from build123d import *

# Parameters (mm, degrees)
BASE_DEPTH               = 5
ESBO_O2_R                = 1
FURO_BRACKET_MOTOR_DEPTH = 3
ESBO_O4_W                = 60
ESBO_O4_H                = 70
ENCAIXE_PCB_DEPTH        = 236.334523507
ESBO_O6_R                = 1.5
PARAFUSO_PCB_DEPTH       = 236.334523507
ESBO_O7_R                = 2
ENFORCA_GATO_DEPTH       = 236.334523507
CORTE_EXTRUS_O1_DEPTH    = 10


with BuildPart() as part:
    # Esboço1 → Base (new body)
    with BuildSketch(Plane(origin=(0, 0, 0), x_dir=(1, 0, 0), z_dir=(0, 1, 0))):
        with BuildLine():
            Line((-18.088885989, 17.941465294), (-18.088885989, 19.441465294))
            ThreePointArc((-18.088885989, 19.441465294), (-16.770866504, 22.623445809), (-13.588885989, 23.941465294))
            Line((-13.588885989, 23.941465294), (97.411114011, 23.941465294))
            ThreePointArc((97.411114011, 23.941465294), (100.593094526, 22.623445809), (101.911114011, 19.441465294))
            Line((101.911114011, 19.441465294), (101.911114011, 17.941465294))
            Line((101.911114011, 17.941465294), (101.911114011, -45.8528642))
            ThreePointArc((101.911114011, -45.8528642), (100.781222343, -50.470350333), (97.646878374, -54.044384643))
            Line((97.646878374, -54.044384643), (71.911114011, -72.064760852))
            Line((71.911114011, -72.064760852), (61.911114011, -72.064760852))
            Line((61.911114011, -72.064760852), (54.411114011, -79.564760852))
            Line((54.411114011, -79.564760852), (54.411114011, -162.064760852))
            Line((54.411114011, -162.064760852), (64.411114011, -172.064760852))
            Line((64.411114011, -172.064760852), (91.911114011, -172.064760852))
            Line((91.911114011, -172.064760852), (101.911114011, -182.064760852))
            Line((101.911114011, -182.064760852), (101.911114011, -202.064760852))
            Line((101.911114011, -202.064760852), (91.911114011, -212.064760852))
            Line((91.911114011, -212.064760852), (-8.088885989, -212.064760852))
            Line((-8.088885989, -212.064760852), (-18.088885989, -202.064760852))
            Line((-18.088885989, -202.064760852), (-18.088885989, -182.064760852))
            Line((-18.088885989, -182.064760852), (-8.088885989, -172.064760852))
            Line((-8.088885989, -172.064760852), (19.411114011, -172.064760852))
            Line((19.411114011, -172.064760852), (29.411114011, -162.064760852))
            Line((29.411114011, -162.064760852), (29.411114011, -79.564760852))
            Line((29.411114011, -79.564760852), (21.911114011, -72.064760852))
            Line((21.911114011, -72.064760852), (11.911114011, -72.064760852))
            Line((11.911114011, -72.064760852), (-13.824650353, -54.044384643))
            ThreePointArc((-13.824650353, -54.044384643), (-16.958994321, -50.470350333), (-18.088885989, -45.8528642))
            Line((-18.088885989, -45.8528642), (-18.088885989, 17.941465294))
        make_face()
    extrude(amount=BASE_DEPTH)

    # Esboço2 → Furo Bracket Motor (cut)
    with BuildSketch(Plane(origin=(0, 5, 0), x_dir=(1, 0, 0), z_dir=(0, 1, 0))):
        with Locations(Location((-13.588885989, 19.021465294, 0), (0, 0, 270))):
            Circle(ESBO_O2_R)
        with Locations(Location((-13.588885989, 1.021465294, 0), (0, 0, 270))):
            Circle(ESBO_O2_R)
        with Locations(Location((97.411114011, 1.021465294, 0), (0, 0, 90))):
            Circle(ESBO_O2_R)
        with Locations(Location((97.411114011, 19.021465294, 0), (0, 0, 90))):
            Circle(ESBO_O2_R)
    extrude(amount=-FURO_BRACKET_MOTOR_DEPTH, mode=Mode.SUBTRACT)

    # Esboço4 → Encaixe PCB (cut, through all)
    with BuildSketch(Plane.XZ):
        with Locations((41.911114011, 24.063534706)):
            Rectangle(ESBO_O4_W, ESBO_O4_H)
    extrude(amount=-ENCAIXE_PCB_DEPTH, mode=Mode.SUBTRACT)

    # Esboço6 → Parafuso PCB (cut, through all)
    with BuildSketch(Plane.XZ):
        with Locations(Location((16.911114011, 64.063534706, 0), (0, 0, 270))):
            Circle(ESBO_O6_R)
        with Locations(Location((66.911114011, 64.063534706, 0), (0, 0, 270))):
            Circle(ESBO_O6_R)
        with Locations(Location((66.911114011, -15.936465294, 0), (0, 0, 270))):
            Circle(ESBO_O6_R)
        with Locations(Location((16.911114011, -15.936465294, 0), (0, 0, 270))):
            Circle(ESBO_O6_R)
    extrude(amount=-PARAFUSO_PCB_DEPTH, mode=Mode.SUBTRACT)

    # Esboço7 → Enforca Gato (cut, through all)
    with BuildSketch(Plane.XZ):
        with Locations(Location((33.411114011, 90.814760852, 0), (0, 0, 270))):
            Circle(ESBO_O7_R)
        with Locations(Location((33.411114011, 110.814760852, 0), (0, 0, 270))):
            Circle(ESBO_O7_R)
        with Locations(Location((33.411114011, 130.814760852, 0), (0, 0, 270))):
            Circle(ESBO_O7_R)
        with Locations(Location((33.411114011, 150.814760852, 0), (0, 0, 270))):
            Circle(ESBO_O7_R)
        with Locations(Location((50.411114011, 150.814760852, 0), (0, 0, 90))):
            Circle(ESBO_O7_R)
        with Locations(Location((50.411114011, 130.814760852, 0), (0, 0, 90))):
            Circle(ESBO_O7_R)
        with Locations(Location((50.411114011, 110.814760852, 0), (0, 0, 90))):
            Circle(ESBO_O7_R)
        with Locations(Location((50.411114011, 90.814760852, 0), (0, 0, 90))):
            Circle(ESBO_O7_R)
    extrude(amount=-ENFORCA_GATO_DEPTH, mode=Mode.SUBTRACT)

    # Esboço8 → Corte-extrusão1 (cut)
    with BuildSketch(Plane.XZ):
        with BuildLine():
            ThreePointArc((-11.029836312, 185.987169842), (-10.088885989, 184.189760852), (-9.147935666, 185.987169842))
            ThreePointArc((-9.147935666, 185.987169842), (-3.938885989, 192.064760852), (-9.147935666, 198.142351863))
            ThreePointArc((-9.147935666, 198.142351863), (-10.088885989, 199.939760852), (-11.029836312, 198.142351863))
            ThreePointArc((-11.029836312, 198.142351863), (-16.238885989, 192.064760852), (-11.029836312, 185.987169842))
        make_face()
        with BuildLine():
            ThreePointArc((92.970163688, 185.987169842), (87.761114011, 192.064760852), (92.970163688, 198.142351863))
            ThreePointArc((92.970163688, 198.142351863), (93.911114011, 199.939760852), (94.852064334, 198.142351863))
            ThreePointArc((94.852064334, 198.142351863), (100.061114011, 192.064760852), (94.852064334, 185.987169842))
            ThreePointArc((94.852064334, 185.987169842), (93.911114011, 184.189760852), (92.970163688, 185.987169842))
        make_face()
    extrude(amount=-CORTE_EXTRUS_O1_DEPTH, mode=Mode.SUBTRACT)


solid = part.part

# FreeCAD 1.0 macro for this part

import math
import FreeCAD as App
import Part
import Sketcher
from FreeCAD import Vector
Q = App.Units.Quantity

doc = App.newDocument("Part")
params = doc.addObject("Spreadsheet::Sheet", "Params")
for row, (alias, value) in enumerate([
    ("sketch1_radius", "10 mm"),
    ("sketch1_radius2", "4.5 mm"),
    ("sketch1_width", "10 mm"),
    ("sketch1_width2", "100 mm"),
    ("sketch1_height", "20 mm"),
    ("pad1_length", "5 mm"),
    ("sketch2_diameter", "2 mm"),
    ("pocket1_length", "3 mm"),
    ("sketch3_width", "60 mm"),
    ("sketch3_height", "70 mm"),
    ("sketch4_diameter", "3 mm"),
    ("sketch5_diameter", "4 mm"),
    ("sketch6_radius", "6.15 mm"),
    ("pocket5_length", "10 mm"),
], start=1):
    params.set(f"A{row}", alias)
    params.set(f"B{row}", "=" + value)
    params.setAlias(f"B{row}", alias)

body = doc.addObject("PartDesign::Body", "Body")

sketch1 = body.newObject("Sketcher::SketchObject", "Sketch")
sketch1.AttachmentSupport = (doc.getObject("XZ_Plane"), [""])
sketch1.MapMode = "FlatFace"
sketch1.addGeometry([
    Part.ArcOfCircle(Part.Circle(Vector(-13.588886, -19.441465, 0), Vector(0, 0, 1), 4.5), math.radians(-180), math.radians(-90)),
    Part.LineSegment(Vector(-18.088886, -19.441465, 0), Vector(-18.088886, 45.852864, 0)),
    Part.ArcOfCircle(Part.Circle(Vector(-8.088886, 45.852864, 0), Vector(0, 0, 1), 10), math.radians(125), math.radians(180)),
    Part.LineSegment(Vector(-13.82465, 54.044385, 0), Vector(11.911114, 72.064761, 0)),
    Part.LineSegment(Vector(11.911114, 72.064761, 0), Vector(21.911114, 72.064761, 0)),
    Part.LineSegment(Vector(21.911114, 72.064761, 0), Vector(29.411114, 79.564761, 0)),
    Part.LineSegment(Vector(29.411114, 79.564761, 0), Vector(29.411114, 162.064761, 0)),
    Part.LineSegment(Vector(29.411114, 162.064761, 0), Vector(19.411114, 172.064761, 0)),
    Part.LineSegment(Vector(19.411114, 172.064761, 0), Vector(-8.088886, 172.064761, 0)),
    Part.LineSegment(Vector(-8.088886, 172.064761, 0), Vector(-18.088886, 182.064761, 0)),
    Part.LineSegment(Vector(-18.088886, 182.064761, 0), Vector(-18.088886, 202.064761, 0)),
    Part.LineSegment(Vector(-18.088886, 202.064761, 0), Vector(-8.088886, 212.064761, 0)),
    Part.LineSegment(Vector(-8.088886, 212.064761, 0), Vector(91.911114, 212.064761, 0)),
    Part.LineSegment(Vector(91.911114, 212.064761, 0), Vector(101.911114, 202.064761, 0)),
    Part.LineSegment(Vector(101.911114, 202.064761, 0), Vector(101.911114, 182.064761, 0)),
    Part.LineSegment(Vector(101.911114, 182.064761, 0), Vector(91.911114, 172.064761, 0)),
    Part.LineSegment(Vector(91.911114, 172.064761, 0), Vector(64.411114, 172.064761, 0)),
    Part.LineSegment(Vector(64.411114, 172.064761, 0), Vector(54.411114, 162.064761, 0)),
    Part.LineSegment(Vector(54.411114, 162.064761, 0), Vector(54.411114, 79.564761, 0)),
    Part.LineSegment(Vector(54.411114, 79.564761, 0), Vector(61.911114, 72.064761, 0)),
    Part.LineSegment(Vector(61.911114, 72.064761, 0), Vector(71.911114, 72.064761, 0)),
    Part.LineSegment(Vector(71.911114, 72.064761, 0), Vector(97.646878, 54.044385, 0)),
    Part.ArcOfCircle(Part.Circle(Vector(91.911114, 45.852864, 0), Vector(0, 0, 1), 10), math.radians(0), math.radians(55)),
    Part.LineSegment(Vector(101.911114, 45.852864, 0), Vector(101.911114, -19.441465, 0)),
    Part.ArcOfCircle(Part.Circle(Vector(97.411114, -19.441465, 0), Vector(0, 0, 1), 4.5), math.radians(-90), math.radians(0)),
    Part.LineSegment(Vector(97.411114, -23.941465, 0), Vector(-13.588886, -23.941465, 0)),
], False)
sketch1.addConstraint([
    Sketcher.Constraint("Tangent", 0, 1, 1, 1),
    Sketcher.Constraint("Tangent", 1, 2, 2, 2),
    Sketcher.Constraint("Tangent", 2, 1, 3, 1),
    Sketcher.Constraint("Coincident", 3, 2, 4, 1),
    Sketcher.Constraint("Coincident", 4, 2, 5, 1),
    Sketcher.Constraint("Coincident", 5, 2, 6, 1),
    Sketcher.Constraint("Coincident", 6, 2, 7, 1),
    Sketcher.Constraint("Coincident", 7, 2, 8, 1),
    Sketcher.Constraint("Coincident", 8, 2, 9, 1),
    Sketcher.Constraint("Coincident", 9, 2, 10, 1),
    Sketcher.Constraint("Coincident", 10, 2, 11, 1),
    Sketcher.Constraint("Coincident", 11, 2, 12, 1),
    Sketcher.Constraint("Coincident", 12, 2, 13, 1),
    Sketcher.Constraint("Coincident", 13, 2, 14, 1),
    Sketcher.Constraint("Coincident", 14, 2, 15, 1),
    Sketcher.Constraint("Coincident", 15, 2, 16, 1),
    Sketcher.Constraint("Coincident", 16, 2, 17, 1),
    Sketcher.Constraint("Coincident", 17, 2, 18, 1),
    Sketcher.Constraint("Coincident", 18, 2, 19, 1),
    Sketcher.Constraint("Coincident", 19, 2, 20, 1),
    Sketcher.Constraint("Coincident", 20, 2, 21, 1),
    Sketcher.Constraint("Tangent", 21, 2, 22, 2),
    Sketcher.Constraint("Tangent", 22, 1, 23, 1),
    Sketcher.Constraint("Tangent", 23, 2, 24, 2),
    Sketcher.Constraint("Tangent", 24, 1, 25, 1),
    Sketcher.Constraint("Tangent", 25, 2, 0, 2),
    Sketcher.Constraint("Vertical", 1),
    Sketcher.Constraint("Horizontal", 4),
    Sketcher.Constraint("Vertical", 6),
    Sketcher.Constraint("Horizontal", 8),
    Sketcher.Constraint("Vertical", 10),
    Sketcher.Constraint("Horizontal", 12),
    Sketcher.Constraint("Vertical", 14),
    Sketcher.Constraint("Horizontal", 16),
    Sketcher.Constraint("Vertical", 18),
    Sketcher.Constraint("Horizontal", 20),
    Sketcher.Constraint("Vertical", 23),
    Sketcher.Constraint("Horizontal", 25),
    Sketcher.Constraint("Equal", 2, 22),
    Sketcher.Constraint("Equal", 0, 24),
    Sketcher.Constraint("Perpendicular", 5, 7),
    Sketcher.Constraint("Parallel", 7, 9),
    Sketcher.Constraint("Perpendicular", 9, 11),
    Sketcher.Constraint("Perpendicular", 11, 13),
    Sketcher.Constraint("Perpendicular", 13, 15),
    Sketcher.Constraint("Parallel", 15, 17),
    Sketcher.Constraint("Perpendicular", 17, 19),
    Sketcher.Constraint("Horizontal", 2, 3, 22, 3),
    Sketcher.Constraint("Horizontal", 10, 2, 13, 2),
    Sketcher.Constraint("Horizontal", 9, 2, 14, 2),
    Sketcher.Constraint("Horizontal", 8, 2, 15, 2),
    Sketcher.Constraint("Horizontal", 6, 2, 17, 2),
    Sketcher.Constraint("Horizontal", 5, 2, 18, 2),
    Sketcher.Constraint("Horizontal", 4, 2, 19, 2),
    Sketcher.Constraint("Horizontal", 2, 1, 21, 2),
    Sketcher.Constraint("Vertical", 2, 3, 8, 2),
    Sketcher.Constraint("Vertical", 1, 2, 9, 2),
    Sketcher.Constraint("Vertical", 8, 2, 11, 2),
    Sketcher.Constraint("Vertical", 22, 3, 12, 2),
    Sketcher.Constraint("Vertical", 12, 2, 15, 2),
    Sketcher.Constraint("Equal", 8, 16),
    Sketcher.Constraint("Equal", 7, 9),
    Sketcher.Constraint("Radius", 2, Q("10 mm")),
    Sketcher.Constraint("Radius", 0, Q("4.5 mm")),
    Sketcher.Constraint("DistanceX", 4, 1, 4, 2, Q("10 mm")),
    Sketcher.Constraint("DistanceX", 12, 1, 12, 2, Q("100 mm")),
    Sketcher.Constraint("DistanceY", 10, 1, 10, 2, Q("20 mm")),
    Sketcher.Constraint("Angle", 3, Q("35 deg")),
    Sketcher.Constraint("DistanceX", 8, 2, 8, 1, Q("27.5 mm")),
    Sketcher.Constraint("DistanceY", 6, 1, 6, 2, Q("82.5 mm")),
    Sketcher.Constraint("DistanceX", 2, 3, 3, 2, Q("20 mm")),
    Sketcher.Constraint("DistanceY", 1, 1, 1, 2, Q("65.294329 mm")),
    Sketcher.Constraint("DistanceX", 2, 1, -1, 1, Q("13.82465 mm")),
    Sketcher.Constraint("DistanceY", -1, 1, 3, 2, Q("72.064761 mm")),
])
sketch1.setExpression("Constraints[62]", "Params.sketch1_radius")
sketch1.setExpression("Constraints[63]", "Params.sketch1_radius2")
sketch1.setExpression("Constraints[64]", "Params.sketch1_width")
sketch1.setExpression("Constraints[65]", "Params.sketch1_width2")
sketch1.setExpression("Constraints[66]", "Params.sketch1_height")
pad1 = body.newObject("PartDesign::Pad", "Pad")
pad1.Profile = sketch1
pad1.setExpression("Length", "Params.pad1_length")
pad1.Reversed = True

sketch2 = body.newObject("Sketcher::SketchObject", "Sketch001")
sketch2.AttachmentSupport = (doc.getObject("XZ_Plane"), [""])
sketch2.MapMode = "FlatFace"
sketch2.AttachmentOffset = App.Placement(Vector(0, 0, -5), App.Rotation())
sketch2.addGeometry([
    Part.Circle(Vector(-13.588886, -19.021465, 0), Vector(0, 0, 1), 1),
    Part.Circle(Vector(-13.588886, -1.021465, 0), Vector(0, 0, 1), 1),
    Part.Circle(Vector(97.411114, -1.021465, 0), Vector(0, 0, 1), 1),
    Part.Circle(Vector(97.411114, -19.021465, 0), Vector(0, 0, 1), 1),
], False)
sketch2.addConstraint([
    Sketcher.Constraint("Equal", 0, 1),
    Sketcher.Constraint("Equal", 1, 2),
    Sketcher.Constraint("Equal", 2, 3),
    Sketcher.Constraint("Horizontal", 1, 3, 2, 3),
    Sketcher.Constraint("Horizontal", 0, 3, 3, 3),
    Sketcher.Constraint("Vertical", 0, 3, 1, 3),
    Sketcher.Constraint("Vertical", 2, 3, 3, 3),
    Sketcher.Constraint("Diameter", 0, Q("2 mm")),
    Sketcher.Constraint("DistanceY", 0, 3, 1, 3, Q("18 mm")),
    Sketcher.Constraint("DistanceX", 1, 3, 2, 3, Q("111 mm")),
    Sketcher.Constraint("DistanceX", 0, 3, -1, 1, Q("13.588886 mm")),
    Sketcher.Constraint("DistanceY", 0, 3, -1, 1, Q("19.021465 mm")),
])
sketch2.setExpression("Constraints[7]", "Params.sketch2_diameter")
pocket1 = body.newObject("PartDesign::Pocket", "Pocket")
pocket1.Profile = sketch2
pocket1.setExpression("Length", "Params.pocket1_length")
pocket1.Reversed = True

sketch3 = body.newObject("Sketcher::SketchObject", "Sketch002")
sketch3.AttachmentSupport = (doc.getObject("XZ_Plane"), [""])
sketch3.MapMode = "FlatFace"
sketch3.addGeometry([
    Part.LineSegment(Vector(11.911114, 59.063535, 0), Vector(11.911114, -10.936465, 0)),
    Part.LineSegment(Vector(11.911114, -10.936465, 0), Vector(71.911114, -10.936465, 0)),
    Part.LineSegment(Vector(71.911114, -10.936465, 0), Vector(71.911114, 59.063535, 0)),
    Part.LineSegment(Vector(71.911114, 59.063535, 0), Vector(11.911114, 59.063535, 0)),
], False)
sketch3.addConstraint([
    Sketcher.Constraint("Coincident", 0, 2, 1, 1),
    Sketcher.Constraint("Coincident", 1, 2, 2, 1),
    Sketcher.Constraint("Coincident", 2, 2, 3, 1),
    Sketcher.Constraint("Coincident", 3, 2, 0, 1),
    Sketcher.Constraint("Vertical", 0),
    Sketcher.Constraint("Horizontal", 1),
    Sketcher.Constraint("Vertical", 2),
    Sketcher.Constraint("Horizontal", 3),
    Sketcher.Constraint("DistanceX", 1, 1, 1, 2, Q("60 mm")),
    Sketcher.Constraint("DistanceY", 0, 2, 0, 1, Q("70 mm")),
    Sketcher.Constraint("DistanceX", -1, 1, 0, 2, Q("11.911114 mm")),
    Sketcher.Constraint("DistanceY", 0, 2, -1, 1, Q("10.936465 mm")),
])
sketch3.setExpression("Constraints[8]", "Params.sketch3_width")
sketch3.setExpression("Constraints[9]", "Params.sketch3_height")
pocket2 = body.newObject("PartDesign::Pocket", "Pocket001")
pocket2.Profile = sketch3
pocket2.Type = "ThroughAll"

sketch4 = body.newObject("Sketcher::SketchObject", "Sketch003")
sketch4.AttachmentSupport = (doc.getObject("XZ_Plane"), [""])
sketch4.MapMode = "FlatFace"
sketch4.addGeometry([
    Part.Circle(Vector(16.911114, 64.063535, 0), Vector(0, 0, 1), 1.5),
    Part.Circle(Vector(66.911114, 64.063535, 0), Vector(0, 0, 1), 1.5),
    Part.Circle(Vector(66.911114, -15.936465, 0), Vector(0, 0, 1), 1.5),
    Part.Circle(Vector(16.911114, -15.936465, 0), Vector(0, 0, 1), 1.5),
], False)
sketch4.addConstraint([
    Sketcher.Constraint("Equal", 0, 1),
    Sketcher.Constraint("Equal", 1, 2),
    Sketcher.Constraint("Equal", 2, 3),
    Sketcher.Constraint("Horizontal", 0, 3, 1, 3),
    Sketcher.Constraint("Horizontal", 2, 3, 3, 3),
    Sketcher.Constraint("Vertical", 1, 3, 2, 3),
    Sketcher.Constraint("Vertical", 0, 3, 3, 3),
    Sketcher.Constraint("Diameter", 0, Q("3 mm")),
    Sketcher.Constraint("DistanceX", 0, 3, 1, 3, Q("50 mm")),
    Sketcher.Constraint("DistanceY", 2, 3, 1, 3, Q("80 mm")),
    Sketcher.Constraint("DistanceX", -1, 1, 0, 3, Q("16.911114 mm")),
    Sketcher.Constraint("DistanceY", -1, 1, 0, 3, Q("64.063535 mm")),
])
sketch4.setExpression("Constraints[7]", "Params.sketch4_diameter")
pocket3 = body.newObject("PartDesign::Pocket", "Pocket002")
pocket3.Profile = sketch4
pocket3.Type = "ThroughAll"

sketch5 = body.newObject("Sketcher::SketchObject", "Sketch004")
sketch5.AttachmentSupport = (doc.getObject("XZ_Plane"), [""])
sketch5.MapMode = "FlatFace"
sketch5.addGeometry([
    Part.Circle(Vector(33.411114, 90.814761, 0), Vector(0, 0, 1), 2),
    Part.Circle(Vector(33.411114, 110.814761, 0), Vector(0, 0, 1), 2),
    Part.Circle(Vector(33.411114, 130.814761, 0), Vector(0, 0, 1), 2),
    Part.Circle(Vector(33.411114, 150.814761, 0), Vector(0, 0, 1), 2),
    Part.Circle(Vector(50.411114, 150.814761, 0), Vector(0, 0, 1), 2),
    Part.Circle(Vector(50.411114, 130.814761, 0), Vector(0, 0, 1), 2),
    Part.Circle(Vector(50.411114, 110.814761, 0), Vector(0, 0, 1), 2),
    Part.Circle(Vector(50.411114, 90.814761, 0), Vector(0, 0, 1), 2),
], False)
sketch5.addConstraint([
    Sketcher.Constraint("Equal", 0, 1),
    Sketcher.Constraint("Equal", 1, 2),
    Sketcher.Constraint("Equal", 2, 3),
    Sketcher.Constraint("Equal", 3, 4),
    Sketcher.Constraint("Equal", 4, 5),
    Sketcher.Constraint("Equal", 5, 6),
    Sketcher.Constraint("Equal", 6, 7),
    Sketcher.Constraint("Horizontal", 3, 3, 4, 3),
    Sketcher.Constraint("Horizontal", 2, 3, 5, 3),
    Sketcher.Constraint("Horizontal", 1, 3, 6, 3),
    Sketcher.Constraint("Horizontal", 0, 3, 7, 3),
    Sketcher.Constraint("Vertical", 0, 3, 1, 3),
    Sketcher.Constraint("Vertical", 1, 3, 2, 3),
    Sketcher.Constraint("Vertical", 2, 3, 3, 3),
    Sketcher.Constraint("Vertical", 4, 3, 5, 3),
    Sketcher.Constraint("Vertical", 5, 3, 6, 3),
    Sketcher.Constraint("Vertical", 6, 3, 7, 3),
    Sketcher.Constraint("Diameter", 0, Q("4 mm")),
    Sketcher.Constraint("DistanceY", 0, 3, 1, 3, Q("20 mm")),
    Sketcher.Constraint("DistanceY", 1, 3, 2, 3, Q("20 mm")),
    Sketcher.Constraint("DistanceY", 2, 3, 3, 3, Q("20 mm")),
    Sketcher.Constraint("DistanceX", 3, 3, 4, 3, Q("17 mm")),
    Sketcher.Constraint("DistanceY", -1, 1, 0, 3, Q("90.814761 mm")),
    Sketcher.Constraint("DistanceX", -1, 1, 0, 3, Q("33.411114 mm")),
])
sketch5.setExpression("Constraints[17]", "Params.sketch5_diameter")
pocket4 = body.newObject("PartDesign::Pocket", "Pocket003")
pocket4.Profile = sketch5
pocket4.Type = "ThroughAll"

sketch6 = body.newObject("Sketcher::SketchObject", "Sketch005")
sketch6.AttachmentSupport = (doc.getObject("XZ_Plane"), [""])
sketch6.MapMode = "FlatFace"
sketch6.addGeometry([
    Part.ArcOfCircle(Part.Circle(Vector(-10.088886, 185.334761, 0), Vector(0, 0, 1), 1.145), math.radians(145.264451), math.radians(394.735549)),
    Part.ArcOfCircle(Part.Circle(Vector(-10.088886, 192.064761, 0), Vector(0, 0, 1), 6.15), math.radians(-81.199176), math.radians(81.199176)),
    Part.ArcOfCircle(Part.Circle(Vector(-10.088886, 198.794761, 0), Vector(0, 0, 1), 1.145), math.radians(-34.735549), math.radians(214.735549)),
    Part.ArcOfCircle(Part.Circle(Vector(-10.088886, 192.064761, 0), Vector(0, 0, 1), 6.15), math.radians(98.800824), math.radians(261.199176)),
    Part.ArcOfCircle(Part.Circle(Vector(93.911114, 192.064761, 0), Vector(0, 0, 1), 6.15), math.radians(98.800824), math.radians(261.199176)),
    Part.ArcOfCircle(Part.Circle(Vector(93.911114, 185.334761, 0), Vector(0, 0, 1), 1.145), math.radians(145.264451), math.radians(394.735549)),
    Part.ArcOfCircle(Part.Circle(Vector(93.911114, 192.064761, 0), Vector(0, 0, 1), 6.15), math.radians(-81.199176), math.radians(81.199176)),
    Part.ArcOfCircle(Part.Circle(Vector(93.911114, 198.794761, 0), Vector(0, 0, 1), 1.145), math.radians(-34.735549), math.radians(214.735549)),
], False)
sketch6.addConstraint([
    Sketcher.Constraint("Coincident", 0, 2, 1, 1),
    Sketcher.Constraint("Coincident", 1, 2, 2, 1),
    Sketcher.Constraint("Coincident", 2, 2, 3, 1),
    Sketcher.Constraint("Coincident", 3, 2, 0, 1),
    Sketcher.Constraint("Coincident", 4, 2, 5, 1),
    Sketcher.Constraint("Coincident", 5, 2, 6, 1),
    Sketcher.Constraint("Coincident", 6, 2, 7, 1),
    Sketcher.Constraint("Coincident", 7, 2, 4, 1),
    Sketcher.Constraint("Coincident", 3, 3, 1, 3),
    Sketcher.Constraint("Coincident", 6, 3, 4, 3),
    Sketcher.Constraint("Equal", 0, 2),
    Sketcher.Constraint("Equal", 1, 3),
    Sketcher.Constraint("Equal", 3, 4),
    Sketcher.Constraint("Equal", 2, 5),
    Sketcher.Constraint("Equal", 4, 6),
    Sketcher.Constraint("Equal", 5, 7),
    Sketcher.Constraint("Horizontal", 3, 3, 4, 3),
    Sketcher.Constraint("Horizontal", 0, 3, 5, 3),
    Sketcher.Constraint("Horizontal", 2, 3, 7, 3),
    Sketcher.Constraint("Horizontal", 1, 2, 2, 2),
    Sketcher.Constraint("Horizontal", 0, 2, 3, 2),
    Sketcher.Constraint("Horizontal", 3, 2, 4, 2),
    Sketcher.Constraint("Horizontal", 2, 2, 6, 2),
    Sketcher.Constraint("Vertical", 0, 2, 1, 2),
    Sketcher.Constraint("Radius", 1, Q("6.15 mm")),
    Sketcher.Constraint("Radius", 0, Q("1.145 mm")),
    Sketcher.Constraint("DistanceX", 1, 3, 4, 3, Q("104 mm")),
    Sketcher.Constraint("DistanceY", 0, 3, 1, 3, Q("6.73 mm")),
    Sketcher.Constraint("DistanceY", -1, 1, 0, 3, Q("185.334761 mm")),
    Sketcher.Constraint("DistanceX", 0, 3, -1, 1, Q("10.088886 mm")),
])
sketch6.setExpression("Constraints[24]", "Params.sketch6_radius")
pocket5 = body.newObject("PartDesign::Pocket", "Pocket004")
pocket5.Profile = sketch6
pocket5.setExpression("Length", "Params.pocket5_length")

doc.recompute()
